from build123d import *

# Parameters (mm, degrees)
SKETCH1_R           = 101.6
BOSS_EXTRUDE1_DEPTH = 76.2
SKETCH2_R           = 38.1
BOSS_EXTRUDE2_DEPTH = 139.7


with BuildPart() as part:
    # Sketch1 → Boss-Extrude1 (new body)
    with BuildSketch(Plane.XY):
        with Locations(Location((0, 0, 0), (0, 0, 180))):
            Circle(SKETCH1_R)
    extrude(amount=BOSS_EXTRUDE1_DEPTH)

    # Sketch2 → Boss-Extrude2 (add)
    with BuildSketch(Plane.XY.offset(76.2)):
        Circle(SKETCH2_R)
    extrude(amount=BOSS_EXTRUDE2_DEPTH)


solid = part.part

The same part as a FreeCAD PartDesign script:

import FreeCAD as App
import Part
import Sketcher
Q = App.Units.Quantity

doc = App.newDocument("Part")
body = doc.addObject("PartDesign::Body", "Body")

# Sketch on XY plane
sketch1 = doc.addObject("Sketcher::SketchObject", "Sketch")
body.addObject(sketch1)
sketch1.AttachmentSupport = (doc.XY_Plane, [""])
sketch1.MapMode = "FlatFace"
sketch1.addGeometry(Part.Circle(App.Vector(0, 0, 0), App.Vector(0, 0, 1), 102), False)
sketch1.addConstraint(Sketcher.Constraint("Coincident", 0, 3, -1, 1))
sketch1.addConstraint(Sketcher.Constraint("Diameter", 0, Q("8 in")))
pad1 = doc.addObject("PartDesign::Pad", "Pad")
body.addObject(pad1)
pad1.Profile = sketch1
pad1.Length = Q("3 in")

# Sketch on XY plane
sketch2 = doc.addObject("Sketcher::SketchObject", "Sketch001")
body.addObject(sketch2)
sketch2.AttachmentSupport = (doc.XY_Plane, [""])
sketch2.MapMode = "FlatFace"
sketch2.AttachmentOffset = App.Placement(App.Vector(0, 0, 3 * 25.4), App.Rotation())
sketch2.addGeometry(Part.Circle(App.Vector(0, 0, 0), App.Vector(0, 0, 1), 38), False)
sketch2.addConstraint(Sketcher.Constraint("Coincident", 0, 3, -1, 1))
sketch2.addConstraint(Sketcher.Constraint("Diameter", 0, Q("3 in")))
pad2 = doc.addObject("PartDesign::Pad", "Pad001")
body.addObject(pad2)
pad2.Profile = sketch2
pad2.Length = Q("5.5 in")

doc.recompute()
